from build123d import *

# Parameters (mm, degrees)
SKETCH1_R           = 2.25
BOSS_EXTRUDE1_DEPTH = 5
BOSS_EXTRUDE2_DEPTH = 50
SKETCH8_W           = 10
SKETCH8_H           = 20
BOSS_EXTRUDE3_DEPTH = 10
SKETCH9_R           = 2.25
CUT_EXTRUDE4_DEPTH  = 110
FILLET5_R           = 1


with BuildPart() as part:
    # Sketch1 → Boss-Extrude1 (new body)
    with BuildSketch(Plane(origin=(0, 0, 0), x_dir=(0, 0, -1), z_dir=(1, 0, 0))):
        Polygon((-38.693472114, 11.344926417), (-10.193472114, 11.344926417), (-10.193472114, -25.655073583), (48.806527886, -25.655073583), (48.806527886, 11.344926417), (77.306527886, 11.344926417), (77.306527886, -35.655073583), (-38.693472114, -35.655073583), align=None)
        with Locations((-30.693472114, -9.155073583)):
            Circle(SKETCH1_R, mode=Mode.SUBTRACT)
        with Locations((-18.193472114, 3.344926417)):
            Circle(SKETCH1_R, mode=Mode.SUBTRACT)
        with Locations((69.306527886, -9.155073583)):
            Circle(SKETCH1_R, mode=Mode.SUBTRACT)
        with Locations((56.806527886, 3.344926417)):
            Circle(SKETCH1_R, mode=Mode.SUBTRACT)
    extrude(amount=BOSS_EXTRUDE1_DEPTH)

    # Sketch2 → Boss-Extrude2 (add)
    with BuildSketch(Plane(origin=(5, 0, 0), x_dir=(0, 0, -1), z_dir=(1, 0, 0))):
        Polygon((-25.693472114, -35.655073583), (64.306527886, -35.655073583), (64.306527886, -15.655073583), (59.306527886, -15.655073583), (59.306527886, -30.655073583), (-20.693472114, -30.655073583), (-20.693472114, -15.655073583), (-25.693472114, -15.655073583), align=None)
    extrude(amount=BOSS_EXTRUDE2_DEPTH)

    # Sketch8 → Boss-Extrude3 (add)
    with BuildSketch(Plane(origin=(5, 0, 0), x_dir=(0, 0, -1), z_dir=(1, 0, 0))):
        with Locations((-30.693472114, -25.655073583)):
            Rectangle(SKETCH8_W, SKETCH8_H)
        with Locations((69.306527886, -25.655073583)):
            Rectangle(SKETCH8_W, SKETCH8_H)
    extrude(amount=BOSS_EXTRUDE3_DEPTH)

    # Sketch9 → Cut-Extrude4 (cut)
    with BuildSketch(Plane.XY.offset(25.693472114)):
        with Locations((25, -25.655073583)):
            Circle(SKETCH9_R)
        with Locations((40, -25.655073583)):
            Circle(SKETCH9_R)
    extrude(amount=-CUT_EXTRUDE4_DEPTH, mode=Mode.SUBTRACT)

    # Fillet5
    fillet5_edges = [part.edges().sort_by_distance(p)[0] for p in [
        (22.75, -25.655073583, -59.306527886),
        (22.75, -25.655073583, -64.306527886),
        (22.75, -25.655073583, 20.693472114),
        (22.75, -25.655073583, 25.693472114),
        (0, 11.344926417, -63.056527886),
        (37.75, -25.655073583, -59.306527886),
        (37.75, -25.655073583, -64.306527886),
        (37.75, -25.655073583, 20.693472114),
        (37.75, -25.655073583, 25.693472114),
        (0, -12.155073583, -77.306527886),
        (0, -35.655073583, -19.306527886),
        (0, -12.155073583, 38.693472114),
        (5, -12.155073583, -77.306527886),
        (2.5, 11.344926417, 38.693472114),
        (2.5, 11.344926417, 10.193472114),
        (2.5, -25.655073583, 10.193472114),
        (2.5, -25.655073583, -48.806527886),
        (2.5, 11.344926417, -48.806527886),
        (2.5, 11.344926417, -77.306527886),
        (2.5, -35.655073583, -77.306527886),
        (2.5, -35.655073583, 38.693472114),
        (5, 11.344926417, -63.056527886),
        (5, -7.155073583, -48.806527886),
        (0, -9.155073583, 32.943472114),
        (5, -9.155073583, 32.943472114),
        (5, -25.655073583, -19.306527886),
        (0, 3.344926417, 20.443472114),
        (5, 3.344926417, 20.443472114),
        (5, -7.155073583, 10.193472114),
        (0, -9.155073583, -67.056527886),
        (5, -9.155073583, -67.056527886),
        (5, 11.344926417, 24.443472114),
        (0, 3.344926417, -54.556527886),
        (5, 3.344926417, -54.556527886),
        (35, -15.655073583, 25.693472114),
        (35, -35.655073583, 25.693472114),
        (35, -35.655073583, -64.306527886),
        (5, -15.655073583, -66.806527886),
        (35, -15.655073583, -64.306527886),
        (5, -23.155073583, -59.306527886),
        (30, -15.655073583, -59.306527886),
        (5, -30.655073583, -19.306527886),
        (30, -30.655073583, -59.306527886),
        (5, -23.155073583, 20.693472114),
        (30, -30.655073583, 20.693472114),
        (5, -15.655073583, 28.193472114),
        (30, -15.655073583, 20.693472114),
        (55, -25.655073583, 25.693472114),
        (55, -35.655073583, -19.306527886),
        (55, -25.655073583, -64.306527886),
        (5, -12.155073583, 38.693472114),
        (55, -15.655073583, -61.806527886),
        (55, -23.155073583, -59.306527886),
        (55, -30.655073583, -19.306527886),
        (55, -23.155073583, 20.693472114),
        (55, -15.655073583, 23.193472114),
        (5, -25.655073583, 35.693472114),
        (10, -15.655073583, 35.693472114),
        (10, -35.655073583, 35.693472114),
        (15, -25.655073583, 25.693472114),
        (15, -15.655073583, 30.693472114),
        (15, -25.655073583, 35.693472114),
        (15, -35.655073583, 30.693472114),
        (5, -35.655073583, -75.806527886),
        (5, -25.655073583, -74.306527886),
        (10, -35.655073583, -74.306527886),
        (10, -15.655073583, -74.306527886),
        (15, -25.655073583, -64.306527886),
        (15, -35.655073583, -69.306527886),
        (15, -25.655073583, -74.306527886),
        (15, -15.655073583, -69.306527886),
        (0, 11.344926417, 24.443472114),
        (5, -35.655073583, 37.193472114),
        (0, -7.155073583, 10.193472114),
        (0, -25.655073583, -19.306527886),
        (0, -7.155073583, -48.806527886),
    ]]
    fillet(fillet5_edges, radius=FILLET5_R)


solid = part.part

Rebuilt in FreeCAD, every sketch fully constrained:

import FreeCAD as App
import Part
import Sketcher
from FreeCAD import Vector


def add_polygon(sketch, points):
    """Adds a closed chain of lines whose ends are joined by coincident constraints."""
    first, n = sketch.GeometryCount, len(points)
    for a, b in zip(points, points[1:] + points[:1]):
        sketch.addGeometry(Part.LineSegment(App.Vector(*a, 0), App.Vector(*b, 0)), False)
    for i in range(n):
        sketch.addConstraint(Sketcher.Constraint("Coincident", first + i, 2, first + (i + 1) % n, 1))

doc = App.newDocument("Part")
body = doc.addObject("PartDesign::Body", "Body")

# Sketch on YZ plane
sketch1 = body.newObject("Sketcher::SketchObject", "Sketch")
sketch1.AttachmentSupport = (doc.getObject("YZ_Plane"), [""])
sketch1.MapMode = "FlatFace"
add_polygon(sketch1, [(11.3, 10.2), (11.3, 38.7), (-35.7, 38.7), (-35.7, -77.3), (11.3, -77.3), (11.3, -48.8), (-25.7, -48.8), (-25.7, 10.2)])  # lines 0-7
sketch1.addGeometry(Part.Circle(Vector(-9.2, -69.3, 0), Vector(0, 0, 1), 2.2), False)  # 8
sketch1.addGeometry(Part.Circle(Vector(-9.2, 30.7, 0), Vector(0, 0, 1), 2.2), False)  # 9
sketch1.addGeometry(Part.Circle(Vector(3.3, -56.8, 0), Vector(0, 0, 1), 2.2), False)  # 10
sketch1.addGeometry(Part.Circle(Vector(3.3, 18.2, 0), Vector(0, 0, 1), 2.2), False)  # 11
sketch1.addConstraint([
    Sketcher.Constraint("Vertical", 0),
    Sketcher.Constraint("Horizontal", 1),
    Sketcher.Constraint("Vertical", 2),
    Sketcher.Constraint("Horizontal", 3),
    Sketcher.Constraint("Vertical", 4),
    Sketcher.Constraint("Horizontal", 5),
    Sketcher.Constraint("Vertical", 6),
    Sketcher.Constraint("Horizontal", 7),
    Sketcher.Constraint("Equal", 8, 9),
    Sketcher.Constraint("Equal", 9, 10),
    Sketcher.Constraint("Equal", 10, 11),
    Sketcher.Constraint("Vertical", 8, 3, 9, 3),
    Sketcher.Constraint("Vertical", 10, 3, 11, 3),
    Sketcher.Constraint("Vertical", 0, 2, 3, 2),
    Sketcher.Constraint("Equal", 0, 4),
    Sketcher.Constraint("Diameter", 8, 4.5),
    Sketcher.Constraint("DistanceX", 1, 2, 1, 1, 47.0),
    Sketcher.Constraint("DistanceX", 5, 2, 5, 1, 37.0),
    Sketcher.Constraint("DistanceY", 2, 2, 2, 1, 116.0),
    Sketcher.Constraint("DistanceY", 6, 1, 6, 2, 59.0),
    Sketcher.Constraint("DistanceY", 8, 3, 9, 3, 100.0),
    Sketcher.Constraint("DistanceY", 10, 3, 11, 3, 75.0),
    Sketcher.Constraint("DistanceY", 9, 3, 0, 2, 8.0),
    Sketcher.Constraint("DistanceX", 11, 3, 0, 2, 8.0),
    Sketcher.Constraint("DistanceY", 10, 3, 4, 2, 8.0),
    Sketcher.Constraint("DistanceX", 8, 3, 10, 3, 12.5),
    Sketcher.Constraint("DistanceX", 8, 3, -1, 1, 9.155074),
    Sketcher.Constraint("DistanceY", 8, 3, -1, 1, 69.306528),
])
pad1 = body.newObject("PartDesign::Pad", "Pad")
pad1.Profile = sketch1
pad1.Length = 5

# Sketch on YZ plane
sketch2 = body.newObject("Sketcher::SketchObject", "Sketch001")
sketch2.AttachmentSupport = (doc.getObject("YZ_Plane"), [""])
sketch2.MapMode = "FlatFace"
sketch2.AttachmentOffset = App.Placement(Vector(0, 0, 5), App.Rotation())
add_polygon(sketch2, [(-36, 26), (-36, -64), (-16, -64), (-16, -59), (-31, -59), (-31, 21), (-16, 21), (-16, 26)])  # lines 0-7
sketch2.addConstraint([
    Sketcher.Constraint("Vertical", 0),
    Sketcher.Constraint("Horizontal", 1),
    Sketcher.Constraint("Vertical", 2),
    Sketcher.Constraint("Horizontal", 3),
    Sketcher.Constraint("Vertical", 4),
    Sketcher.Constraint("Horizontal", 5),
    Sketcher.Constraint("Vertical", 6),
    Sketcher.Constraint("Horizontal", 7),
    Sketcher.Constraint("Vertical", 2, 2, 5, 2),
    Sketcher.Constraint("Equal", 2, 6),
    Sketcher.Constraint("DistanceX", 1, 1, 1, 2, 20.0),
    Sketcher.Constraint("DistanceX", 3, 2, 3, 1, 15.0),
    Sketcher.Constraint("DistanceY", 0, 2, 0, 1, 90.0),
    Sketcher.Constraint("DistanceY", 2, 1, 2, 2, 5.0),
    Sketcher.Constraint("DistanceX", 0, 2, -1, 1, 35.655074),
    Sketcher.Constraint("DistanceY", 0, 2, -1, 1, 64.306528),
])
pad2 = body.newObject("PartDesign::Pad", "Pad001")
pad2.Profile = sketch2
pad2.Length = 50

# Sketch on YZ plane
sketch3 = body.newObject("Sketcher::SketchObject", "Sketch002")
sketch3.AttachmentSupport = (doc.getObject("YZ_Plane"), [""])
sketch3.MapMode = "FlatFace"
sketch3.AttachmentOffset = App.Placement(Vector(0, 0, 5), App.Rotation())
add_polygon(sketch3, [(-16, 36), (-36, 36), (-36, 26), (-16, 26)])  # lines 0-3
add_polygon(sketch3, [(-16, -64), (-36, -64), (-36, -74), (-16, -74)])  # lines 4-7
sketch3.addConstraint([
    Sketcher.Constraint("Horizontal", 0),
    Sketcher.Constraint("Vertical", 1),
    Sketcher.Constraint("Horizontal", 2),
    Sketcher.Constraint("Vertical", 3),
    Sketcher.Constraint("Horizontal", 4),
    Sketcher.Constraint("Vertical", 5),
    Sketcher.Constraint("Horizontal", 6),
    Sketcher.Constraint("Vertical", 7),
    Sketcher.Constraint("Vertical", 1, 2, 4, 2),
    Sketcher.Constraint("Vertical", 3, 2, 6, 2),
    Sketcher.Constraint("Equal", 3, 5),
    Sketcher.Constraint("DistanceX", 0, 2, 0, 1, 20.0),
    Sketcher.Constraint("DistanceY", 1, 2, 1, 1, 10.0),
    Sketcher.Constraint("DistanceY", 4, 2, 1, 2, 90.0),
    Sketcher.Constraint("DistanceX", 0, 2, -1, 1, 35.655074),
    Sketcher.Constraint("DistanceY", -1, 1, 0, 2, 35.693472),
])
pad3 = body.newObject("PartDesign::Pad", "Pad002")
pad3.Profile = sketch3
pad3.Length = 10

# Sketch on XY plane
sketch4 = body.newObject("Sketcher::SketchObject", "Sketch003")
sketch4.AttachmentSupport = (doc.getObject("XY_Plane"), [""])
sketch4.MapMode = "FlatFace"
sketch4.AttachmentOffset = App.Placement(Vector(0, 0, 25.693472), App.Rotation())
sketch4.addGeometry([
    Part.Circle(Vector(25, -25.7, 0), Vector(0, 0, 1), 2.2),
    Part.Circle(Vector(40, -25.7, 0), Vector(0, 0, 1), 2.2),
], False)
sketch4.addConstraint([
    Sketcher.Constraint("Equal", 0, 1),
    Sketcher.Constraint("Horizontal", 0, 3, 1, 3),
    Sketcher.Constraint("Diameter", 0, 4.5),
    Sketcher.Constraint("DistanceX", -1, 1, 0, 3, 25.0),
    Sketcher.Constraint("DistanceX", -1, 1, 1, 3, 40.0),
    Sketcher.Constraint("DistanceY", 0, 3, -1, 1, 25.655074),
])
pocket1 = body.newObject("PartDesign::Pocket", "Pocket")
pocket1.Profile = sketch4
pocket1.Length = 110
doc.recompute()

fillet = body.newObject("PartDesign::Fillet", "Fillet")
fillet.Base = (pocket1, ["Edge1"])
fillet.UseAllEdges = True
fillet.Radius = 1

doc.recompute()
